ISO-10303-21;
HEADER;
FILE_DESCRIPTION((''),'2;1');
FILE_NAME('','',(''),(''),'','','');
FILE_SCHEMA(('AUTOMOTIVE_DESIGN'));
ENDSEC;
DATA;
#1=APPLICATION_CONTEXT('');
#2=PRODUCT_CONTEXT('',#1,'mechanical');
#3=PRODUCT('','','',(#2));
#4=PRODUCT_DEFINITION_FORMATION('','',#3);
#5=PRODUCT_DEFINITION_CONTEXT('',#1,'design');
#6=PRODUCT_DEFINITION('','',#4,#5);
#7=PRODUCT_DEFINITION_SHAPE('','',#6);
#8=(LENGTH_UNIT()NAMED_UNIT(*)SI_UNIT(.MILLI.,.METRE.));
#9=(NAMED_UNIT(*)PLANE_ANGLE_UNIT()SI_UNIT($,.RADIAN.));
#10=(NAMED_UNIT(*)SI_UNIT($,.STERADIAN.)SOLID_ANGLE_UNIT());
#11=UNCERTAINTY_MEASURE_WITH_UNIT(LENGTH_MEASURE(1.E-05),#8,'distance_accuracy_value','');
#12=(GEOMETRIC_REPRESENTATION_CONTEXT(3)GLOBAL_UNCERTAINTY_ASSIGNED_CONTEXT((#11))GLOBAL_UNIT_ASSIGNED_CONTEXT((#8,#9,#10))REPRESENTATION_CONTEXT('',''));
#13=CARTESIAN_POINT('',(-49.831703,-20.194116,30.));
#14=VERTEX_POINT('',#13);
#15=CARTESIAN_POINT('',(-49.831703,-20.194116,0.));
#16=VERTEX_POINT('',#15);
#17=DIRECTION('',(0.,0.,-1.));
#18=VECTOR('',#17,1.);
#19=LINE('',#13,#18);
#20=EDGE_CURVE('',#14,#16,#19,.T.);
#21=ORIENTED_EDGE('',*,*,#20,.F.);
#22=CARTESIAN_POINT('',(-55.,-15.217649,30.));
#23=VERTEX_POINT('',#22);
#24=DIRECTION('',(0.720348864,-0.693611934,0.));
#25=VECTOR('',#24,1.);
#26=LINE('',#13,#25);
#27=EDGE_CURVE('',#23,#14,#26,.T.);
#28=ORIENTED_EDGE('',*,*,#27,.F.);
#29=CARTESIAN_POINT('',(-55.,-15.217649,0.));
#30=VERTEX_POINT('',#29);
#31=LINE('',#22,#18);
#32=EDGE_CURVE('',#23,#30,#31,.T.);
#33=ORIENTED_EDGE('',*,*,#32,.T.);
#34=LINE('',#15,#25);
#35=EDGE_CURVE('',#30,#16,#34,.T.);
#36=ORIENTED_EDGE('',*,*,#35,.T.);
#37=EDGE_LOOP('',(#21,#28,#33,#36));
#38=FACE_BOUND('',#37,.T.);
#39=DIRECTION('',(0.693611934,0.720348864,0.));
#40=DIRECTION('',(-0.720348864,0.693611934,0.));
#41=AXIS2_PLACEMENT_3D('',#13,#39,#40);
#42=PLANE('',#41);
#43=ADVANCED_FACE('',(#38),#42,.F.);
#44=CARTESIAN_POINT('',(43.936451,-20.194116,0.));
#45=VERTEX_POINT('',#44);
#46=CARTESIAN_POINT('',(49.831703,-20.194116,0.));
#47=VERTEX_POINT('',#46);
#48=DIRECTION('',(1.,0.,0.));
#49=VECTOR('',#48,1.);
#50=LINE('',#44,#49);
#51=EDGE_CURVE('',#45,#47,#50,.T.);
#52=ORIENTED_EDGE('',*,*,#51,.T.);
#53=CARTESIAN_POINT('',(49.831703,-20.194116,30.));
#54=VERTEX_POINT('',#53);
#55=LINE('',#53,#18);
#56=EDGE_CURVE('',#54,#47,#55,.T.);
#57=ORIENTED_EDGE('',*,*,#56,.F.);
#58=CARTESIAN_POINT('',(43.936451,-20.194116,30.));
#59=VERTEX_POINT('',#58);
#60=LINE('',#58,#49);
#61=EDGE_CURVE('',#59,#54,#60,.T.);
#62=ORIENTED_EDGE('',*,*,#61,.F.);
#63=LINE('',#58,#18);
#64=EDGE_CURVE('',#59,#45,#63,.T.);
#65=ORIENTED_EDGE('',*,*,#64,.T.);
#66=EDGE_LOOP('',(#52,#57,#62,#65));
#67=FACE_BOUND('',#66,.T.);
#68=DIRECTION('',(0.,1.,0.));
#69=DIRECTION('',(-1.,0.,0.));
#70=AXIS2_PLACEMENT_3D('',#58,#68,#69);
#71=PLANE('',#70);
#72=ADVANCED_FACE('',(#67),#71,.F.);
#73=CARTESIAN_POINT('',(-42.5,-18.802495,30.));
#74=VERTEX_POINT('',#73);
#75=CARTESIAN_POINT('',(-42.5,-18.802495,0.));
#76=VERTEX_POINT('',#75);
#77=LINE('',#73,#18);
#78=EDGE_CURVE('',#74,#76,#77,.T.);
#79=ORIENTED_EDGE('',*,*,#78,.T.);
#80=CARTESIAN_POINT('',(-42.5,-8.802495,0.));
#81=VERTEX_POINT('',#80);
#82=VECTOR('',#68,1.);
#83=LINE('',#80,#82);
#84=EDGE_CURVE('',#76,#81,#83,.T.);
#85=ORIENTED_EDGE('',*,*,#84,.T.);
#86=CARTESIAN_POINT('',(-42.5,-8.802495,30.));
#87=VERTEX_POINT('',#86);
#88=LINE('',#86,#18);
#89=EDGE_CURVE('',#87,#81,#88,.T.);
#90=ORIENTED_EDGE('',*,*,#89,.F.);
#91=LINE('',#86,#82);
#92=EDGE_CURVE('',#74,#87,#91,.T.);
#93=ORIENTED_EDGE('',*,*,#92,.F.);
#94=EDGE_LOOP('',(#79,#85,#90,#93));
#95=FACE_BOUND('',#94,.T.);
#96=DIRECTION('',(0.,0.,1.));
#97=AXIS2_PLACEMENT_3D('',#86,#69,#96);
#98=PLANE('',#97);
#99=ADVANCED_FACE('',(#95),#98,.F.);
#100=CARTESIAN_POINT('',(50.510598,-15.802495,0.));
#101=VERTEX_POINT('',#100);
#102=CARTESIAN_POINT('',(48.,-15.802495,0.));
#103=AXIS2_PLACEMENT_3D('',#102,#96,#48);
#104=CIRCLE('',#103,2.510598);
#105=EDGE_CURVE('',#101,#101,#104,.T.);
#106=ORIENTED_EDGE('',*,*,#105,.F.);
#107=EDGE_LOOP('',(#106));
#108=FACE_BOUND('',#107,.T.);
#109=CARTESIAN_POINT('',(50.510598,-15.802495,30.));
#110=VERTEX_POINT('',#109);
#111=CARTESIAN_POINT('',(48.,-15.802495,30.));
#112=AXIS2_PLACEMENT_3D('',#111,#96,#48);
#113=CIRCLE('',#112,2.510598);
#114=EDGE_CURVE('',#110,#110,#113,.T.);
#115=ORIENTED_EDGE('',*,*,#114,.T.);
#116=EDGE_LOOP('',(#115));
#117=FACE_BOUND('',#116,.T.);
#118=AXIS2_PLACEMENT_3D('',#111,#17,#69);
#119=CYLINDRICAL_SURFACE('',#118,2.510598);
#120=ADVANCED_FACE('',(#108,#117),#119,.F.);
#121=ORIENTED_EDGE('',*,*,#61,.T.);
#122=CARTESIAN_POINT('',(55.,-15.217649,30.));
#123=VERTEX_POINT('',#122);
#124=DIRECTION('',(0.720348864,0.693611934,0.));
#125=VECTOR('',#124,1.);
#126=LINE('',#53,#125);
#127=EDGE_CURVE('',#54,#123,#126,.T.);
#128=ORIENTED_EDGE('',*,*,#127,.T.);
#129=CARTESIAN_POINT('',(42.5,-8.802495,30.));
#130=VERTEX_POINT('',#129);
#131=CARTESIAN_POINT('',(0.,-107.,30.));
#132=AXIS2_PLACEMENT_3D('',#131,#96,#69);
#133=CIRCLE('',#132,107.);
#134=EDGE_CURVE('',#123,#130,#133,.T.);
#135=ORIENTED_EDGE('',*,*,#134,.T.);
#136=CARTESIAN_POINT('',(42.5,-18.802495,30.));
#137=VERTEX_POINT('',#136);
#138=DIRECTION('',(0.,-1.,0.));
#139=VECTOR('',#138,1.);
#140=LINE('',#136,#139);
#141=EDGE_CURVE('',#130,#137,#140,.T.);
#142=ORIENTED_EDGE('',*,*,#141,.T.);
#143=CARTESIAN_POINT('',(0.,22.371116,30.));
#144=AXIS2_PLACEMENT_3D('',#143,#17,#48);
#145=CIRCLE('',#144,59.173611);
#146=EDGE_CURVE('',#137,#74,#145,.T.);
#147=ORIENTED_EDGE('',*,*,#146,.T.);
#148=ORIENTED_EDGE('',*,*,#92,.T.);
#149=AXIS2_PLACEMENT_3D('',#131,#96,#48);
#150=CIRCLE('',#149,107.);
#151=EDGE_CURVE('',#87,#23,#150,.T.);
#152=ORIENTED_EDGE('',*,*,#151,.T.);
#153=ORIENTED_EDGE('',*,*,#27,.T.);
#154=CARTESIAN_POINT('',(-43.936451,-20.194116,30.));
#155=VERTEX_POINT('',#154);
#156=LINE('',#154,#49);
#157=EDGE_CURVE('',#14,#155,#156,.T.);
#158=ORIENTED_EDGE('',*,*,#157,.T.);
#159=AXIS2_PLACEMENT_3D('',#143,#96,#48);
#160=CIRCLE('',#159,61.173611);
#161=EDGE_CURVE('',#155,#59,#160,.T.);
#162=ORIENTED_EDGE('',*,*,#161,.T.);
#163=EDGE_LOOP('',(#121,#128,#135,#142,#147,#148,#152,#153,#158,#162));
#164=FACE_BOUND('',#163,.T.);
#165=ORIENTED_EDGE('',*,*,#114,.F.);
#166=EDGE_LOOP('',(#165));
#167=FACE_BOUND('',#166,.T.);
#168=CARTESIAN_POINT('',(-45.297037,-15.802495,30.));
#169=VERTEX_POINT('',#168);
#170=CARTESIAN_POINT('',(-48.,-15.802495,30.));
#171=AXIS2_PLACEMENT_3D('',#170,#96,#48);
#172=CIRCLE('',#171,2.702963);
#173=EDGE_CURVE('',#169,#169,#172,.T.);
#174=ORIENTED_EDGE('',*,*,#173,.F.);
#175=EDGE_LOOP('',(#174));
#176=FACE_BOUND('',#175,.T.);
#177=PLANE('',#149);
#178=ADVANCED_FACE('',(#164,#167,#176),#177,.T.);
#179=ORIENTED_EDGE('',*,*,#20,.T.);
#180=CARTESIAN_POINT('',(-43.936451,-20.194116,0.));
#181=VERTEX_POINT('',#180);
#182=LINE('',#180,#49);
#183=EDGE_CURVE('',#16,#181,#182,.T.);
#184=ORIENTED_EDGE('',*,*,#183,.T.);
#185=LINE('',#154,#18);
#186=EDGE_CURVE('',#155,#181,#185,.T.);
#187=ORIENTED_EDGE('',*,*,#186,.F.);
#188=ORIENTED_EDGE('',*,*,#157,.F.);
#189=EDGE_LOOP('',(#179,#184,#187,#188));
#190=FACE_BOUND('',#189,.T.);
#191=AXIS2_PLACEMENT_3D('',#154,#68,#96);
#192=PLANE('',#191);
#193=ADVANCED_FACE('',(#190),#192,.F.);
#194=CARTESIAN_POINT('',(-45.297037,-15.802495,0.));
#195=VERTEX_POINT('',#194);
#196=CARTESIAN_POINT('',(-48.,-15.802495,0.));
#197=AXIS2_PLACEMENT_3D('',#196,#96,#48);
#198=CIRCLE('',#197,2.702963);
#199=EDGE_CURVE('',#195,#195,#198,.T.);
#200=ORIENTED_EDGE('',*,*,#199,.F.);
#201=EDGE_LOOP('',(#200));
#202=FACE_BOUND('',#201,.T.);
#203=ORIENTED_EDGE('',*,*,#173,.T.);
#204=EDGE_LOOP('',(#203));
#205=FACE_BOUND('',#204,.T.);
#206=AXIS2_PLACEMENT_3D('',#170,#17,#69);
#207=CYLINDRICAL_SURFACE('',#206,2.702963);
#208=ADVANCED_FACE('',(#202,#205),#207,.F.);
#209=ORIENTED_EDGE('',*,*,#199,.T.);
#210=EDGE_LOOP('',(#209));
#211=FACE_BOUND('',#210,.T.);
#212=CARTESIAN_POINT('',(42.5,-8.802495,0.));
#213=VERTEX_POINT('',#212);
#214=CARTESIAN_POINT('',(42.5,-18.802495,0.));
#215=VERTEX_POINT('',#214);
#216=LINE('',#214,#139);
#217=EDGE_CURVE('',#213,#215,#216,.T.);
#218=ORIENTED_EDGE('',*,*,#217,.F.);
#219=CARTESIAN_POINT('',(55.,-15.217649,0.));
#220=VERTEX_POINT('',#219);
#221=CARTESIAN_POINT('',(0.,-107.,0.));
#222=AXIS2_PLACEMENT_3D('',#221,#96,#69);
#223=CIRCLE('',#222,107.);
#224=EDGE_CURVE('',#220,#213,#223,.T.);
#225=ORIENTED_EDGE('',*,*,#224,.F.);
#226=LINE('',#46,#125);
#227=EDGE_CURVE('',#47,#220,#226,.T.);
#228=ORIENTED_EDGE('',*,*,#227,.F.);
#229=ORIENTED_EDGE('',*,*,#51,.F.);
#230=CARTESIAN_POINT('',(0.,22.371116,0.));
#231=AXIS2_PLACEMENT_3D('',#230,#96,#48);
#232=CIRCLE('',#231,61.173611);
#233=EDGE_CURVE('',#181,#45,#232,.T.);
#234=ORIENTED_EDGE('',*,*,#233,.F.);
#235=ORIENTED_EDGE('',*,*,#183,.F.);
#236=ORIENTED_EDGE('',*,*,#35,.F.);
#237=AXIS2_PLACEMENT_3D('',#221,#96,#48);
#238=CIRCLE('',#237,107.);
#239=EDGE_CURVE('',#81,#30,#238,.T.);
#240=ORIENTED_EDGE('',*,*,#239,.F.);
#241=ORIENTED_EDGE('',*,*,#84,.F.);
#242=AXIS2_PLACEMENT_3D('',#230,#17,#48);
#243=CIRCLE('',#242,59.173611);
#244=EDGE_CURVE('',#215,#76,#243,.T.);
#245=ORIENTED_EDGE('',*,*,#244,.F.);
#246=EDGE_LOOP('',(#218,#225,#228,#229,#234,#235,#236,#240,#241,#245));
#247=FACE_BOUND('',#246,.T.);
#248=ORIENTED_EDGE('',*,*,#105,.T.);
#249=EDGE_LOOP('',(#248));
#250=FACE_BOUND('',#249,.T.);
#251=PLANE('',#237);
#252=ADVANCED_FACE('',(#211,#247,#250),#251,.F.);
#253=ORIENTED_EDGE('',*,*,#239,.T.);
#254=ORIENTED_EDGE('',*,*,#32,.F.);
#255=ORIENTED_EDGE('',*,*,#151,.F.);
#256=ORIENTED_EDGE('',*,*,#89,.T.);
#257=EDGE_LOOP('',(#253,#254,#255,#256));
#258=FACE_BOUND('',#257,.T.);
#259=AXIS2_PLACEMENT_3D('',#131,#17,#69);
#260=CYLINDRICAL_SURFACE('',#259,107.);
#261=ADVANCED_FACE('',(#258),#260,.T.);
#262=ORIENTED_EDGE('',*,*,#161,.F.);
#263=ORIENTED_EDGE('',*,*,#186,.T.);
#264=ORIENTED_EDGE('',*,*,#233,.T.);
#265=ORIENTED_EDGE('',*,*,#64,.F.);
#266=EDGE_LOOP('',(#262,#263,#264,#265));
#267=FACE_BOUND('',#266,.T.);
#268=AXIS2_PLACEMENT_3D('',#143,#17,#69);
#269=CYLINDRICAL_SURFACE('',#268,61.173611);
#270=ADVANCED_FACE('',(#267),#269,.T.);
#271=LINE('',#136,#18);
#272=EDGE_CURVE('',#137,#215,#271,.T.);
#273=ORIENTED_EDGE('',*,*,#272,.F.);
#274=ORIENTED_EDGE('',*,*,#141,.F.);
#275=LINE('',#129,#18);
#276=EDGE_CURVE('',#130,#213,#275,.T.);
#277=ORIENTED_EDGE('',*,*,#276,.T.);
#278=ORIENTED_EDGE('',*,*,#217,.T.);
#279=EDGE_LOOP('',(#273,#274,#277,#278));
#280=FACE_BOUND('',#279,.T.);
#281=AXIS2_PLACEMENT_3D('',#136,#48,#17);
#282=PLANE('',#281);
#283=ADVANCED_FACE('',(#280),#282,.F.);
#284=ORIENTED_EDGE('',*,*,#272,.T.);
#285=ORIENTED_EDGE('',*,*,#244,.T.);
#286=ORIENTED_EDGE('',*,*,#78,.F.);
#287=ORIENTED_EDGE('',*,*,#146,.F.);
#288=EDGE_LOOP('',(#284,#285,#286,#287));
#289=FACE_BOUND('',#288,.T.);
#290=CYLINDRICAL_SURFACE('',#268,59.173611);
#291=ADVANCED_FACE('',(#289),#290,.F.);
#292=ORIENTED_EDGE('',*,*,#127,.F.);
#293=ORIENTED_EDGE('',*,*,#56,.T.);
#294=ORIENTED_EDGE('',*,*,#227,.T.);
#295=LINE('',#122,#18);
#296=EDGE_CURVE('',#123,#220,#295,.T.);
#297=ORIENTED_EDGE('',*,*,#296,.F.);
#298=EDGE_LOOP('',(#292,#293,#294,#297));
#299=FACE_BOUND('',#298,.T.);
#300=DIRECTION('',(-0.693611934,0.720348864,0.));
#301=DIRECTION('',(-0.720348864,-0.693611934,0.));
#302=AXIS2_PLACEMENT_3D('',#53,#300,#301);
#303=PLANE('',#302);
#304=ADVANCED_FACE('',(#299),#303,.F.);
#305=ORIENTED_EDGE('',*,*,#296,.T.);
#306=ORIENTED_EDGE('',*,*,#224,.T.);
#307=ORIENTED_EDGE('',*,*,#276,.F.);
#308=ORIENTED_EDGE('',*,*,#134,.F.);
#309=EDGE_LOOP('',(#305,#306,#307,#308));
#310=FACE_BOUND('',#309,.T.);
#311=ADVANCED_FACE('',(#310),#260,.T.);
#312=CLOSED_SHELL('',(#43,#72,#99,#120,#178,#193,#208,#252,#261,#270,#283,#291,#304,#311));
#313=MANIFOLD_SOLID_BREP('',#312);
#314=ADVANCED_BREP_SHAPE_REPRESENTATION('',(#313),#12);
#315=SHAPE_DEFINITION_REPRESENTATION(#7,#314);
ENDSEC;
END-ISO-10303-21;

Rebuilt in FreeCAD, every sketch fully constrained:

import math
import FreeCAD as App
import Part
import Sketcher

doc = App.newDocument("Part")
body = doc.addObject("PartDesign::Body", "Body")

# Sketch on XY plane
sketch1 = doc.addObject("Sketcher::SketchObject", "Sketch")
body.addObject(sketch1)
sketch1.AttachmentSupport = (doc.XY_Plane, [""])
sketch1.MapMode = "FlatFace"
sketch1.addGeometry([
    Part.LineSegment(App.Vector(-42.5, -18.802495, 0), App.Vector(-42.5, -8.802495, 0)),  # 0
    Part.ArcOfCircle(Part.Circle(App.Vector(0, -107, 0), App.Vector(0, 0, 1), 107), math.radians(113.40302), math.radians(120.931886)),  # 1
    Part.LineSegment(App.Vector(-55, -15.217649, 0), App.Vector(-49.831703, -20.194116, 0)),  # 2
    Part.LineSegment(App.Vector(-49.831703, -20.194116, 0), App.Vector(-43.936451, -20.194116, 0)),  # 3
    Part.ArcOfCircle(Part.Circle(App.Vector(0, 22.371116, 0), App.Vector(0, 0, 1), 61.173611), math.radians(-135.908173), math.radians(-44.091827)),  # 4
    Part.LineSegment(App.Vector(43.936451, -20.194116, 0), App.Vector(49.831703, -20.194116, 0)),  # 5
    Part.LineSegment(App.Vector(49.831703, -20.194116, 0), App.Vector(55, -15.217649, 0)),  # 6
    Part.ArcOfCircle(Part.Circle(App.Vector(0, -107, 0), App.Vector(0, 0, 1), 107), math.radians(59.068114), math.radians(66.59698)),  # 7
    Part.LineSegment(App.Vector(42.5, -8.802495, 0), App.Vector(42.5, -18.802495, 0)),  # 8
    Part.ArcOfCircle(Part.Circle(App.Vector(0, 22.371116, 0), App.Vector(0, 0, 1), 59.173611), math.radians(-135.908173), math.radians(-44.091827)),  # 9
    Part.Circle(App.Vector(48, -15.802495, 0), App.Vector(0, 0, 1), 2.510598),  # 10
    Part.Circle(App.Vector(-48, -15.802495, 0), App.Vector(0, 0, 1), 2.702963),  # 11
], False)
sketch1.addConstraint([
    Sketcher.Constraint("Coincident", 0, 2, 1, 1),
    Sketcher.Constraint("Coincident", 1, 2, 2, 1),
    Sketcher.Constraint("Coincident", 2, 2, 3, 1),
    Sketcher.Constraint("Coincident", 3, 2, 4, 1),
    Sketcher.Constraint("Coincident", 4, 2, 5, 1),
    Sketcher.Constraint("Coincident", 5, 2, 6, 1),
    Sketcher.Constraint("Coincident", 6, 2, 7, 1),
    Sketcher.Constraint("Coincident", 7, 2, 8, 1),
    Sketcher.Constraint("Coincident", 8, 2, 9, 2),
    Sketcher.Constraint("Coincident", 9, 1, 0, 1),
    Sketcher.Constraint("Vertical", 0),
    Sketcher.Constraint("Horizontal", 3),
    Sketcher.Constraint("Horizontal", 5),
    Sketcher.Constraint("Vertical", 8),
    Sketcher.Constraint("Coincident", 7, 3, 1, 3),
    Sketcher.Constraint("Coincident", 9, 3, 4, 3),
    Sketcher.Constraint("Equal", 1, 7),
    Sketcher.Constraint("Symmetric", 10, 3, 11, 3, -2),
    Sketcher.Constraint("Symmetric", 3, 2, 4, 2, -2),
    Sketcher.Constraint("Symmetric", 1, 2, 6, 2, -2),
    Sketcher.Constraint("Horizontal", 0, 2, 7, 2),
    Sketcher.Constraint("Equal", 3, 5),
    Sketcher.Constraint("Radius", 1, 107.0),
    Sketcher.Constraint("DistanceY", 0, 1, 0, 2, 10.0),
    Sketcher.Constraint("DistanceY", 1, 3, -1, 1, 107.0),
    Sketcher.Constraint("DistanceX", -1, 1, 10, 3, 48.0),
    Sketcher.Constraint("DistanceX", 1, 2, -1, 1, 55.0),
    Sketcher.Constraint("DistanceY", 11, 3, 0, 2, 7.0),
    Sketcher.Constraint("DistanceX", 0, 2, -1, 1, 42.5),
    Sketcher.Constraint("Radius", 4, 61.173611),
    Sketcher.Constraint("Radius", 9, 59.173611),
    Sketcher.Constraint("Diameter", 10, 5.021196),
    Sketcher.Constraint("Diameter", 11, 5.405926),
    Sketcher.Constraint("DistanceX", 3, 1, 3, 2, 5.895252),
    Sketcher.Constraint("DistanceX", 3, 2, -1, 1, 43.936451),
])
pad1 = doc.addObject("PartDesign::Pad", "Pad")
body.addObject(pad1)
pad1.Profile = sketch1
pad1.Length = 30

doc.recompute()
